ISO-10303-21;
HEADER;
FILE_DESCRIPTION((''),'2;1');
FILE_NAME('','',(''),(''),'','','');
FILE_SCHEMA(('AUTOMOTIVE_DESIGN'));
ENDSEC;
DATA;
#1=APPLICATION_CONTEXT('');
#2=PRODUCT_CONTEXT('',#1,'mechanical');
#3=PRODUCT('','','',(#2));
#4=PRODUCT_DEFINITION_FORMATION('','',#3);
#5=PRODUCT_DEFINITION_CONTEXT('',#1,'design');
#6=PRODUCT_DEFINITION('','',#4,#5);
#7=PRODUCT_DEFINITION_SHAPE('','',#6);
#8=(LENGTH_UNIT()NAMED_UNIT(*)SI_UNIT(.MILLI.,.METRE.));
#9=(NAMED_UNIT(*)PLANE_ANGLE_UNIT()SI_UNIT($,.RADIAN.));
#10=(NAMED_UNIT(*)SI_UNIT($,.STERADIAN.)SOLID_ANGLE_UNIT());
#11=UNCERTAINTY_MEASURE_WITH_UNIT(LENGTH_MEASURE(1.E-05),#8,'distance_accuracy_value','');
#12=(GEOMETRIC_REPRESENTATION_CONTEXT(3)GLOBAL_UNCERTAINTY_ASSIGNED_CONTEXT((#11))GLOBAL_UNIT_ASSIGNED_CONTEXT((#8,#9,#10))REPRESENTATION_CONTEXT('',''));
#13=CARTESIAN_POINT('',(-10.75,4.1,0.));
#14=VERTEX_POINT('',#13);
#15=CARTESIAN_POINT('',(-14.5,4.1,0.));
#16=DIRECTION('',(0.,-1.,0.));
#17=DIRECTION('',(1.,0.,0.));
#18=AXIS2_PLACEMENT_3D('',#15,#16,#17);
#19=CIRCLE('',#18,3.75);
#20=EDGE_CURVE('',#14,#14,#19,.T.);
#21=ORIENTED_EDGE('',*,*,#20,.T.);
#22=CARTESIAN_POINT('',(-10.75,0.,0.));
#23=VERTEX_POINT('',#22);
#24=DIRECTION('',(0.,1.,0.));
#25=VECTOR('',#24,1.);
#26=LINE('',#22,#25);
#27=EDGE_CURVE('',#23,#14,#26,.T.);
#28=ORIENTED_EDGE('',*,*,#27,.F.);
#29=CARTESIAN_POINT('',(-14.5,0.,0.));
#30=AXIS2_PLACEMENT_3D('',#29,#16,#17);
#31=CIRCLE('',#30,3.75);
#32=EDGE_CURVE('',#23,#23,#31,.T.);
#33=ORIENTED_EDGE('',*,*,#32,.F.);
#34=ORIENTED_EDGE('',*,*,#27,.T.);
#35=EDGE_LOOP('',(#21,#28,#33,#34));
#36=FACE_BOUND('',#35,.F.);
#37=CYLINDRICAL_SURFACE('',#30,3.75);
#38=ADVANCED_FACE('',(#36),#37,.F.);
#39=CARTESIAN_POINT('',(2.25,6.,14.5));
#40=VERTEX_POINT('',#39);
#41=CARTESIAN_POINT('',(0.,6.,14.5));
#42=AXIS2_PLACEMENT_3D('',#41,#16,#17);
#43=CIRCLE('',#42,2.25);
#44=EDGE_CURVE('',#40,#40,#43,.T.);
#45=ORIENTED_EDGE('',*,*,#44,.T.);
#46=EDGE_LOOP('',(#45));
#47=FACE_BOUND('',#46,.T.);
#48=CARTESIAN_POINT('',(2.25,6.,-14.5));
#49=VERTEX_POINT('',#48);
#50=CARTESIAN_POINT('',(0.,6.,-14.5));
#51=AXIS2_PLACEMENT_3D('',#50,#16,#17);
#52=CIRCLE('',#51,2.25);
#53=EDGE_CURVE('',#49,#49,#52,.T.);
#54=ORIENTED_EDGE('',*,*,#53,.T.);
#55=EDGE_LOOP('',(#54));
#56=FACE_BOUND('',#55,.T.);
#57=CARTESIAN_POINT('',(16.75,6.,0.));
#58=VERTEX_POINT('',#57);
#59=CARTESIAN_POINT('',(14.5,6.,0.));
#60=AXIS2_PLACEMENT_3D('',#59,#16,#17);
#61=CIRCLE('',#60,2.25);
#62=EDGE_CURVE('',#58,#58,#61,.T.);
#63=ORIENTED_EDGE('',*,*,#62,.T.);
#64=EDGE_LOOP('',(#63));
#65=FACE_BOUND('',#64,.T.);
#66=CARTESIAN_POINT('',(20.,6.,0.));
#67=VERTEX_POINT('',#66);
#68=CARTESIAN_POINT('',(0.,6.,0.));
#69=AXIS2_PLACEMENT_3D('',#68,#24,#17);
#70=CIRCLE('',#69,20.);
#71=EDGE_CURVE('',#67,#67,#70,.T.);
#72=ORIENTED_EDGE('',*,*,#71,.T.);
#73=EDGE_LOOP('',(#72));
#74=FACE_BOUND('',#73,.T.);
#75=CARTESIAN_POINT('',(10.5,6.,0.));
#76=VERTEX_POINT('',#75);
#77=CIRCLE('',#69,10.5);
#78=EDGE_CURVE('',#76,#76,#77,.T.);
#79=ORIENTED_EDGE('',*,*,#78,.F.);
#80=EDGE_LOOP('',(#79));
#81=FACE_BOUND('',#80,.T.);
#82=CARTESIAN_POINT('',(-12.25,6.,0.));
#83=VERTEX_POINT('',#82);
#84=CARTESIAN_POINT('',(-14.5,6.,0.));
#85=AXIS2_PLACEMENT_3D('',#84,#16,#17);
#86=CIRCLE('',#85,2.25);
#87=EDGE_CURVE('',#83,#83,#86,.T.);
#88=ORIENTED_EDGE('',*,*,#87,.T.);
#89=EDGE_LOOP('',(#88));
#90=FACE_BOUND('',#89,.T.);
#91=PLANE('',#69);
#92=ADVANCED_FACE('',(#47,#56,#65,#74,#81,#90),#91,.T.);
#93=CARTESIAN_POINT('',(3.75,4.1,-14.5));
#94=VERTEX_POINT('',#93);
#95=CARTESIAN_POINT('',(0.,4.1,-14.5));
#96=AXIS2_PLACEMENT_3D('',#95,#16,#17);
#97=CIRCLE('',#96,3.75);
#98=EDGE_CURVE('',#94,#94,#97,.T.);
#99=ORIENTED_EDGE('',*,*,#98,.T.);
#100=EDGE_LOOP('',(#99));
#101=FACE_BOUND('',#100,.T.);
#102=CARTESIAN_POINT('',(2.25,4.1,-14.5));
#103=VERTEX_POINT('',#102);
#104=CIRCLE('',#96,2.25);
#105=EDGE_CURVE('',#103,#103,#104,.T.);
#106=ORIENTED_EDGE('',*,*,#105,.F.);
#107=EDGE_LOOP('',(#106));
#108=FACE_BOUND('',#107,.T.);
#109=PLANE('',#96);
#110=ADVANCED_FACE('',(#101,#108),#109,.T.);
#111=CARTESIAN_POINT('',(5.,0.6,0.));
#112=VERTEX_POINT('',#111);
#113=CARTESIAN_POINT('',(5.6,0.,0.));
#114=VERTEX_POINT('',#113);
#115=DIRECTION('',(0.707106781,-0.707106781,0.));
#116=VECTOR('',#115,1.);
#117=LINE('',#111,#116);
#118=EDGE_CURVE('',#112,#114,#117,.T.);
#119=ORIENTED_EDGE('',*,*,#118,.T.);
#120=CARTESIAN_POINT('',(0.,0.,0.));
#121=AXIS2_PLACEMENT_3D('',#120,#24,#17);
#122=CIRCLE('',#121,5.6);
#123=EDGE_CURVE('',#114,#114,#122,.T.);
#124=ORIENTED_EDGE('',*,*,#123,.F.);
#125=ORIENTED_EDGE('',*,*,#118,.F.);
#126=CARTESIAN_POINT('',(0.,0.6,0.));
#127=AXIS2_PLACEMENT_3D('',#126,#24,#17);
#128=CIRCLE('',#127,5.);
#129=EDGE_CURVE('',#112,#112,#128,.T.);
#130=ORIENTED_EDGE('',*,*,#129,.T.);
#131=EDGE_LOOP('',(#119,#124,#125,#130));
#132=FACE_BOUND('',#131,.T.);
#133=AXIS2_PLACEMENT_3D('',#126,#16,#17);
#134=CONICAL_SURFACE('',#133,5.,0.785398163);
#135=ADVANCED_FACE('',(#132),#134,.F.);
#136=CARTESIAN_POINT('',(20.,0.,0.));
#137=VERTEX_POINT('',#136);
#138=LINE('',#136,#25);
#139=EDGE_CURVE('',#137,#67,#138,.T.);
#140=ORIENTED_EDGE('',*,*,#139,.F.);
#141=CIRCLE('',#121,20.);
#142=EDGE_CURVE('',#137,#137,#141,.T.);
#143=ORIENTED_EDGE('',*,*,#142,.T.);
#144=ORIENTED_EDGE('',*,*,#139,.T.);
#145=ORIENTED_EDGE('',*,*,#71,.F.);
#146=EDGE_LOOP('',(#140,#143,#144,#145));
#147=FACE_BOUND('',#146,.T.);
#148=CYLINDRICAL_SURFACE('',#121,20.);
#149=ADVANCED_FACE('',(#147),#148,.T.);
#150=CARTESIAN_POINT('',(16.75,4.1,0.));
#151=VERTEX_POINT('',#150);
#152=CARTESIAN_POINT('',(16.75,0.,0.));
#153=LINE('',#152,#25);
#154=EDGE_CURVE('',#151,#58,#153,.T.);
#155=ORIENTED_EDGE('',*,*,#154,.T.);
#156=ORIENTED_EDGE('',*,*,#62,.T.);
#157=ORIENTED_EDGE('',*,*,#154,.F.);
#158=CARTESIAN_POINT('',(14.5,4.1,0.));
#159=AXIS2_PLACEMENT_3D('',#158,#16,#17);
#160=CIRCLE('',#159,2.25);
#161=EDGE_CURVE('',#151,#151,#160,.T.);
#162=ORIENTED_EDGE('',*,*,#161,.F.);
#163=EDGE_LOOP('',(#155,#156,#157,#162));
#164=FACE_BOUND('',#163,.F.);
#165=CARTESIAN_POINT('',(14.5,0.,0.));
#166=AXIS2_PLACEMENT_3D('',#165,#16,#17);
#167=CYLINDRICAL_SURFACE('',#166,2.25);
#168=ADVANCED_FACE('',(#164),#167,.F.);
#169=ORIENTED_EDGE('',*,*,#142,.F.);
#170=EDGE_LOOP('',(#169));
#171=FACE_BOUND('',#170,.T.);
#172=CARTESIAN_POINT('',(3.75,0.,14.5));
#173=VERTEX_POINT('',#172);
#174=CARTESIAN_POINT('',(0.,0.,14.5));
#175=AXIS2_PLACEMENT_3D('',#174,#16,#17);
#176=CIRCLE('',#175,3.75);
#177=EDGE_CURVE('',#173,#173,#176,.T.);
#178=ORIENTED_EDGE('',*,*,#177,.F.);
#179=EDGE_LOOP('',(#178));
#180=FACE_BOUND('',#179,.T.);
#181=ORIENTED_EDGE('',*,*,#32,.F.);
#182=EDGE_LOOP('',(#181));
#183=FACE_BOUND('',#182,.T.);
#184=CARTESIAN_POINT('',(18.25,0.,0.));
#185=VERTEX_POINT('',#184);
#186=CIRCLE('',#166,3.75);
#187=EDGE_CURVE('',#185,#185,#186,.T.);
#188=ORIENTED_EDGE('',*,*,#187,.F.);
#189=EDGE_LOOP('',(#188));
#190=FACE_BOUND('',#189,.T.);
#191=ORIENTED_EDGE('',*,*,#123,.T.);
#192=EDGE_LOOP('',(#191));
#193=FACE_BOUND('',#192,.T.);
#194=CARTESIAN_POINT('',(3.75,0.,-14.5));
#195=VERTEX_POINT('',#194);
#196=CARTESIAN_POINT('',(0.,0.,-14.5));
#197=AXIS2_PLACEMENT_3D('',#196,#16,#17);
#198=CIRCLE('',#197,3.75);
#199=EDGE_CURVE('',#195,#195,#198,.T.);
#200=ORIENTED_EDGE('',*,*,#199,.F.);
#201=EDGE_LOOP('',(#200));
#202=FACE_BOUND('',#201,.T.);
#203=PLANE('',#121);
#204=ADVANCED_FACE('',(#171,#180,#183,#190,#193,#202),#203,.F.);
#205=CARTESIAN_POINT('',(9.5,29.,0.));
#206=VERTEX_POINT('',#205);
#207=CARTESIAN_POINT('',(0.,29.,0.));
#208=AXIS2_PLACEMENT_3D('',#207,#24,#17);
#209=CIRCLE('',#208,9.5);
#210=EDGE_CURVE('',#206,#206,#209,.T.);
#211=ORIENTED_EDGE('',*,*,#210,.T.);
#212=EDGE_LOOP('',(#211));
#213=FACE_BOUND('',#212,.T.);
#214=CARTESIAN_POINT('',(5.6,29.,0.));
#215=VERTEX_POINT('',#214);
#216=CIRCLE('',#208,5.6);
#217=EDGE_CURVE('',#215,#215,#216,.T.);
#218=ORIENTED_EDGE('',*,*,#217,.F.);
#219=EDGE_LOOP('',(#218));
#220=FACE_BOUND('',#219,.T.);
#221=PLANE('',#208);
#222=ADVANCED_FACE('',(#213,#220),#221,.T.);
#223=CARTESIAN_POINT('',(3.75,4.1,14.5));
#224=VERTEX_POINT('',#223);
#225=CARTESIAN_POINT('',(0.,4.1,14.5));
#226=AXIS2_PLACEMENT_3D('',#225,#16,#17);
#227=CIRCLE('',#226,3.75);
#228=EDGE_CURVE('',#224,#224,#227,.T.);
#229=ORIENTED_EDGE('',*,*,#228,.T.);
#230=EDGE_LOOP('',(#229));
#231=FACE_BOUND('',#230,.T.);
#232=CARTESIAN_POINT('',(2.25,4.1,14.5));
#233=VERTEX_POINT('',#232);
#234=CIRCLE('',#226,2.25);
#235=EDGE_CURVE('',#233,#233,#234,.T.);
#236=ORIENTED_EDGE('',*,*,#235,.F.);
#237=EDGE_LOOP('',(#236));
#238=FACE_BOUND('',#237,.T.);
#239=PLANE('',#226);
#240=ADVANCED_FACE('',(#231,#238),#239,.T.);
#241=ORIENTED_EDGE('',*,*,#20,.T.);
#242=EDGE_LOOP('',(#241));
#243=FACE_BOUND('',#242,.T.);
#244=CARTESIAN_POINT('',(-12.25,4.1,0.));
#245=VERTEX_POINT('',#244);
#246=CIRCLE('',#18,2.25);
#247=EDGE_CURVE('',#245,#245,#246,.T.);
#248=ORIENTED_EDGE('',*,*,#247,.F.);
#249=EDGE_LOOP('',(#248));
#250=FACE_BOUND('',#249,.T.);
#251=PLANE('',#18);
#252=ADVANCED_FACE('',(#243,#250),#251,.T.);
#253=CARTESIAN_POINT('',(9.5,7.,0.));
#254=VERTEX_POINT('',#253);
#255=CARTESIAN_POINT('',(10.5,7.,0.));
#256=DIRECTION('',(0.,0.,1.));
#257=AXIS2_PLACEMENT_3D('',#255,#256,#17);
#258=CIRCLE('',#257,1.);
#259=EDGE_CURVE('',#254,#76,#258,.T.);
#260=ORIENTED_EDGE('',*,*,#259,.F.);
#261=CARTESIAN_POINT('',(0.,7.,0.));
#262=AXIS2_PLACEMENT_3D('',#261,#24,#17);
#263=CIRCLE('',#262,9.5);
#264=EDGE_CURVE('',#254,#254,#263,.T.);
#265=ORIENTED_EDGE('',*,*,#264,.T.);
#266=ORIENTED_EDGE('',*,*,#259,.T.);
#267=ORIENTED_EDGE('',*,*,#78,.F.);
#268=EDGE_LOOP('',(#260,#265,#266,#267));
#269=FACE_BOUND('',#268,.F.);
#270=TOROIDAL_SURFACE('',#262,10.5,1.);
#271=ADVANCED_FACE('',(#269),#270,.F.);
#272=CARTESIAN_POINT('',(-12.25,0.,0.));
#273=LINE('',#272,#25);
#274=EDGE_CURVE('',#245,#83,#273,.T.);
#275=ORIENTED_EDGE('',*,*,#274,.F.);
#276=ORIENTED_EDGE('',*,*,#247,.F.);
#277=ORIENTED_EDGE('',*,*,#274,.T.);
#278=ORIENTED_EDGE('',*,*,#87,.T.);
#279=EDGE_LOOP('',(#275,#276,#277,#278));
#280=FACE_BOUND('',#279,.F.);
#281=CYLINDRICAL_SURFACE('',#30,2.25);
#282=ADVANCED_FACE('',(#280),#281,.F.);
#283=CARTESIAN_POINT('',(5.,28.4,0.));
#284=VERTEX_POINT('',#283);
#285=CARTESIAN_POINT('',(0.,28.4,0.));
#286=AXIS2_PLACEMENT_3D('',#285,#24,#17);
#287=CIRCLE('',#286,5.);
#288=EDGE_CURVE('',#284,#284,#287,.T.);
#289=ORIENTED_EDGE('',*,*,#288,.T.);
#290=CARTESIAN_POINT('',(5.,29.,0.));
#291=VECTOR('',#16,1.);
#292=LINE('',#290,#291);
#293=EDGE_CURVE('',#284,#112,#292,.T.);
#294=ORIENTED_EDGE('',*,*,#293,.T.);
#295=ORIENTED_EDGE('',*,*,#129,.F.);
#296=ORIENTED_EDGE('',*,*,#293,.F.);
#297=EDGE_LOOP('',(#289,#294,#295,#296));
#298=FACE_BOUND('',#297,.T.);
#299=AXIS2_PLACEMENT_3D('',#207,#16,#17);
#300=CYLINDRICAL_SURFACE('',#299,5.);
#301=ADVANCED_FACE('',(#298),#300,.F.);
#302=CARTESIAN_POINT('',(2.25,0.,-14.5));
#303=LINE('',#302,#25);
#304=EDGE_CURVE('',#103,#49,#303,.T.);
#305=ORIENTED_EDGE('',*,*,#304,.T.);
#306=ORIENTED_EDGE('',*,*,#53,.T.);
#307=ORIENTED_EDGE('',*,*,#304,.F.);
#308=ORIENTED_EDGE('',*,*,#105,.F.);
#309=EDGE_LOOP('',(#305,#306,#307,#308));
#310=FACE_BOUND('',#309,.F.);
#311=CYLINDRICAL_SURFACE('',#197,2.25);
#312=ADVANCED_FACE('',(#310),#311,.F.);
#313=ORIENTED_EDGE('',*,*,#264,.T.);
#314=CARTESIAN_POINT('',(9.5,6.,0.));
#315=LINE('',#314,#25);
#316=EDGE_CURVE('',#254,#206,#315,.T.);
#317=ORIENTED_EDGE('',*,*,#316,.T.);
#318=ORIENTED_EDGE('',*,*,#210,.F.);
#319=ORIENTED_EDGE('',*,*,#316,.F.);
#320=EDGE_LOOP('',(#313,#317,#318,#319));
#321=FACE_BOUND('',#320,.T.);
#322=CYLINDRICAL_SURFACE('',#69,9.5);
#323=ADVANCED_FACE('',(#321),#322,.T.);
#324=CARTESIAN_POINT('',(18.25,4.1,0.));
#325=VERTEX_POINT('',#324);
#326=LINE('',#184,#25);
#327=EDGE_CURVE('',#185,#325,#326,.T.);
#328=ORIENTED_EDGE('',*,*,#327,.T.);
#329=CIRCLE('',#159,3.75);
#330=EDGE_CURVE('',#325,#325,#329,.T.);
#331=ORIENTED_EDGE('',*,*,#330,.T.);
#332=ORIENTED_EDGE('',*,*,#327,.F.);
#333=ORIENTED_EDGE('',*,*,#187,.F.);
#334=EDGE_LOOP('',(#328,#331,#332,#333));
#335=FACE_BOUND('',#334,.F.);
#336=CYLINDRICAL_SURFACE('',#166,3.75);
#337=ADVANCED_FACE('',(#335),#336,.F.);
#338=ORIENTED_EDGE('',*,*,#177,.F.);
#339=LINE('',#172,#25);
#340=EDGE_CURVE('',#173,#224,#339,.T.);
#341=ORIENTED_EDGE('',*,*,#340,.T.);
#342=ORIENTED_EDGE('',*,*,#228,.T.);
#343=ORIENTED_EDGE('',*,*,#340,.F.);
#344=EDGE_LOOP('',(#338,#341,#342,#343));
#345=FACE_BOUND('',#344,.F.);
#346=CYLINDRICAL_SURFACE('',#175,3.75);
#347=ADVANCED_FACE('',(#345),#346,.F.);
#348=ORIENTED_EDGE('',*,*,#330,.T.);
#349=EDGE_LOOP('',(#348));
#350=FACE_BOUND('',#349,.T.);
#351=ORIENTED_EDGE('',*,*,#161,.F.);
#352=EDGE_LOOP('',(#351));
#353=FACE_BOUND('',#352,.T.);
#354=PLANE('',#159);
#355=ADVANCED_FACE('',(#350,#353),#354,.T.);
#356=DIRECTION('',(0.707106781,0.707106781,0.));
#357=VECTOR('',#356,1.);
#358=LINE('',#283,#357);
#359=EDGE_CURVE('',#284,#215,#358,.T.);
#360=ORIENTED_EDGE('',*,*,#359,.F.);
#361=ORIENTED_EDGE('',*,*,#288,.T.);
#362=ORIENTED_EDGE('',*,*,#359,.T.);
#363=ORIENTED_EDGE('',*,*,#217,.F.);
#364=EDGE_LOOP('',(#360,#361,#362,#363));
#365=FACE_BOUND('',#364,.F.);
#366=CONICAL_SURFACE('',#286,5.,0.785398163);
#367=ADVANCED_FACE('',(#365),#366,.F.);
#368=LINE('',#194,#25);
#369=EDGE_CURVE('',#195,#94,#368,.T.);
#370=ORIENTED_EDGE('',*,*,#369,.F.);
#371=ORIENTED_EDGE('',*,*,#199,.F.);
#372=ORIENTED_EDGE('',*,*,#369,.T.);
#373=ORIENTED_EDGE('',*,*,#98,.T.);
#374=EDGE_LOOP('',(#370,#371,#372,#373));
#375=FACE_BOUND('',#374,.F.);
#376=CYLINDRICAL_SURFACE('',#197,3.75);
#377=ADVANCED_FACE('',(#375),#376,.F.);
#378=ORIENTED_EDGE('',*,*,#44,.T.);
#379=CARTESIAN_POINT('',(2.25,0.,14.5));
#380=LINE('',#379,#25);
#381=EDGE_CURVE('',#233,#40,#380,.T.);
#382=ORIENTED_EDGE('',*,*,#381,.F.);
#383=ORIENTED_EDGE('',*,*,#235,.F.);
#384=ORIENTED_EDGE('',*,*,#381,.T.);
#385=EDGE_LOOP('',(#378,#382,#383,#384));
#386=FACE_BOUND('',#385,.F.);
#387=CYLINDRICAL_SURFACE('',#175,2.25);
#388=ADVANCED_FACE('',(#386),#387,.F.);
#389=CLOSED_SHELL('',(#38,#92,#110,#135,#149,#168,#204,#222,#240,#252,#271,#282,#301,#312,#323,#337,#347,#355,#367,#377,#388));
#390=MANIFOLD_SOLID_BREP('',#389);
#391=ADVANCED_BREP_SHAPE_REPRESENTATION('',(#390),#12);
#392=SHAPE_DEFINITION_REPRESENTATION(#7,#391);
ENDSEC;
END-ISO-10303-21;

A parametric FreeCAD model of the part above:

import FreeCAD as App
import Part
import Sketcher
from FreeCAD import Vector
Q = App.Units.Quantity


def edges_at(feature, points):
    """Names of the edges that pass closest to the given points."""
    edges = feature.Shape.Edges
    near = lambda p: min(range(len(edges)), key=lambda i: edges[i].distToShape(Part.Vertex(*p))[0])
    return sorted({f"Edge{near(p) + 1}" for p in points})


def add_polygon(sketch, points):
    """Adds a closed chain of lines whose ends are joined by coincident constraints."""
    first, n = sketch.GeometryCount, len(points)
    for a, b in zip(points, points[1:] + points[:1]):
        sketch.addGeometry(Part.LineSegment(App.Vector(*a, 0), App.Vector(*b, 0)), False)
    for i in range(n):
        sketch.addConstraint(Sketcher.Constraint("Coincident", first + i, 2, first + (i + 1) % n, 1))

doc = App.newDocument("Part")
body = doc.addObject("PartDesign::Body", "Body")

# Sketch on XY plane
sketch1 = body.newObject("Sketcher::SketchObject", "Sketch")
sketch1.AttachmentSupport = (doc.getObject("XY_Plane"), [""])
sketch1.MapMode = "FlatFace"
add_polygon(sketch1, [(5, 29), (5, 0), (20, 0), (20, 6), (9.5, 6), (9.5, 29)])  # lines 0-5
sketch1.addConstraint([
    Sketcher.Constraint("Vertical", 0),
    Sketcher.Constraint("Horizontal", 1),
    Sketcher.Constraint("Vertical", 2),
    Sketcher.Constraint("Horizontal", 3),
    Sketcher.Constraint("Vertical", 4),
    Sketcher.Constraint("Horizontal", 5),
    Sketcher.Constraint("PointOnObject", 0, 2, -1),
    Sketcher.Constraint("DistanceX", 1, 1, 1, 2, Q("15 mm")),
    Sketcher.Constraint("DistanceY", 0, 2, 0, 1, Q("29 mm")),
    Sketcher.Constraint("DistanceY", 2, 1, 2, 2, Q("6 mm")),
    Sketcher.Constraint("DistanceX", 3, 2, 3, 1, Q("10.5 mm")),
    Sketcher.Constraint("DistanceX", -1, 1, 0, 2, Q("5 mm")),
])
revolution = body.newObject("PartDesign::Revolution", "Revolution")
revolution.Profile = sketch1
revolution.ReferenceAxis = (sketch1, ["V_Axis"])
revolution.Angle = 360

# Sketch on XZ plane
sketch2 = body.newObject("Sketcher::SketchObject", "Sketch001")
sketch2.AttachmentSupport = (doc.getObject("XZ_Plane"), [""])
sketch2.MapMode = "FlatFace"
sketch2.addGeometry([
    Part.Circle(Vector(0, 14.5, 0), Vector(0, 0, 1), 2.2),
    Part.Circle(Vector(0, -14.5, 0), Vector(0, 0, 1), 2.2),
    Part.Circle(Vector(14.5, 0, 0), Vector(0, 0, 1), 2.2),
    Part.Circle(Vector(-14.5, 0, 0), Vector(0, 0, 1), 2.2),
], False)
sketch2.addConstraint([
    Sketcher.Constraint("Equal", 0, 1),
    Sketcher.Constraint("Equal", 1, 2),
    Sketcher.Constraint("Equal", 2, 3),
    Sketcher.Constraint("Symmetric", 0, 3, 1, 3, -1, 1),
    Sketcher.Constraint("Symmetric", 2, 3, 3, 3, -1, 1),
    Sketcher.Constraint("PointOnObject", 0, 3, -2),
    Sketcher.Constraint("PointOnObject", 2, 3, -1),
    Sketcher.Constraint("Diameter", 0, Q("4.5 mm")),
    Sketcher.Constraint("DistanceY", 1, 3, 0, 3, Q("29 mm")),
    Sketcher.Constraint("DistanceX", 3, 3, 2, 3, Q("29 mm")),
])
pocket1 = body.newObject("PartDesign::Pocket", "Pocket")
pocket1.Profile = sketch2
pocket1.Type = "ThroughAll"

# Sketch on XZ plane
sketch3 = body.newObject("Sketcher::SketchObject", "Sketch002")
sketch3.AttachmentSupport = (doc.getObject("XZ_Plane"), [""])
sketch3.MapMode = "FlatFace"
sketch3.addGeometry([
    Part.Circle(Vector(0, 14.5, 0), Vector(0, 0, 1), 3.8),
    Part.Circle(Vector(14.5, 0, 0), Vector(0, 0, 1), 3.8),
    Part.Circle(Vector(0, -14.5, 0), Vector(0, 0, 1), 3.8),
    Part.Circle(Vector(-14.5, 0, 0), Vector(0, 0, 1), 3.8),
], False)
sketch3.addConstraint([
    Sketcher.Constraint("Equal", 0, 1),
    Sketcher.Constraint("Equal", 1, 2),
    Sketcher.Constraint("Equal", 2, 3),
    Sketcher.Constraint("Symmetric", 0, 3, 2, 3, -1, 1),
    Sketcher.Constraint("Symmetric", 1, 3, 3, 3, -1, 1),
    Sketcher.Constraint("PointOnObject", 0, 3, -2),
    Sketcher.Constraint("PointOnObject", 1, 3, -1),
    Sketcher.Constraint("Diameter", 0, Q("7.5 mm")),
    Sketcher.Constraint("DistanceY", 2, 3, 0, 3, Q("29 mm")),
    Sketcher.Constraint("DistanceX", 3, 3, 1, 3, Q("29 mm")),
])
pocket2 = body.newObject("PartDesign::Pocket", "Pocket001")
pocket2.Profile = sketch3
pocket2.Length = 4.1
doc.recompute()

chamfer = body.newObject("PartDesign::Chamfer", "Chamfer")
chamfer.Base = (pocket2, edges_at(pocket2, [(5, 14.5, 0), (-5, 0, 0), (-5, 29, 0)]))
chamfer.Size = 0.6
doc.recompute()

fillet = body.newObject("PartDesign::Fillet", "Fillet")
fillet.Base = (chamfer, edges_at(chamfer, [(-9.5, 6, 0)]))
fillet.Radius = 1

doc.recompute()
